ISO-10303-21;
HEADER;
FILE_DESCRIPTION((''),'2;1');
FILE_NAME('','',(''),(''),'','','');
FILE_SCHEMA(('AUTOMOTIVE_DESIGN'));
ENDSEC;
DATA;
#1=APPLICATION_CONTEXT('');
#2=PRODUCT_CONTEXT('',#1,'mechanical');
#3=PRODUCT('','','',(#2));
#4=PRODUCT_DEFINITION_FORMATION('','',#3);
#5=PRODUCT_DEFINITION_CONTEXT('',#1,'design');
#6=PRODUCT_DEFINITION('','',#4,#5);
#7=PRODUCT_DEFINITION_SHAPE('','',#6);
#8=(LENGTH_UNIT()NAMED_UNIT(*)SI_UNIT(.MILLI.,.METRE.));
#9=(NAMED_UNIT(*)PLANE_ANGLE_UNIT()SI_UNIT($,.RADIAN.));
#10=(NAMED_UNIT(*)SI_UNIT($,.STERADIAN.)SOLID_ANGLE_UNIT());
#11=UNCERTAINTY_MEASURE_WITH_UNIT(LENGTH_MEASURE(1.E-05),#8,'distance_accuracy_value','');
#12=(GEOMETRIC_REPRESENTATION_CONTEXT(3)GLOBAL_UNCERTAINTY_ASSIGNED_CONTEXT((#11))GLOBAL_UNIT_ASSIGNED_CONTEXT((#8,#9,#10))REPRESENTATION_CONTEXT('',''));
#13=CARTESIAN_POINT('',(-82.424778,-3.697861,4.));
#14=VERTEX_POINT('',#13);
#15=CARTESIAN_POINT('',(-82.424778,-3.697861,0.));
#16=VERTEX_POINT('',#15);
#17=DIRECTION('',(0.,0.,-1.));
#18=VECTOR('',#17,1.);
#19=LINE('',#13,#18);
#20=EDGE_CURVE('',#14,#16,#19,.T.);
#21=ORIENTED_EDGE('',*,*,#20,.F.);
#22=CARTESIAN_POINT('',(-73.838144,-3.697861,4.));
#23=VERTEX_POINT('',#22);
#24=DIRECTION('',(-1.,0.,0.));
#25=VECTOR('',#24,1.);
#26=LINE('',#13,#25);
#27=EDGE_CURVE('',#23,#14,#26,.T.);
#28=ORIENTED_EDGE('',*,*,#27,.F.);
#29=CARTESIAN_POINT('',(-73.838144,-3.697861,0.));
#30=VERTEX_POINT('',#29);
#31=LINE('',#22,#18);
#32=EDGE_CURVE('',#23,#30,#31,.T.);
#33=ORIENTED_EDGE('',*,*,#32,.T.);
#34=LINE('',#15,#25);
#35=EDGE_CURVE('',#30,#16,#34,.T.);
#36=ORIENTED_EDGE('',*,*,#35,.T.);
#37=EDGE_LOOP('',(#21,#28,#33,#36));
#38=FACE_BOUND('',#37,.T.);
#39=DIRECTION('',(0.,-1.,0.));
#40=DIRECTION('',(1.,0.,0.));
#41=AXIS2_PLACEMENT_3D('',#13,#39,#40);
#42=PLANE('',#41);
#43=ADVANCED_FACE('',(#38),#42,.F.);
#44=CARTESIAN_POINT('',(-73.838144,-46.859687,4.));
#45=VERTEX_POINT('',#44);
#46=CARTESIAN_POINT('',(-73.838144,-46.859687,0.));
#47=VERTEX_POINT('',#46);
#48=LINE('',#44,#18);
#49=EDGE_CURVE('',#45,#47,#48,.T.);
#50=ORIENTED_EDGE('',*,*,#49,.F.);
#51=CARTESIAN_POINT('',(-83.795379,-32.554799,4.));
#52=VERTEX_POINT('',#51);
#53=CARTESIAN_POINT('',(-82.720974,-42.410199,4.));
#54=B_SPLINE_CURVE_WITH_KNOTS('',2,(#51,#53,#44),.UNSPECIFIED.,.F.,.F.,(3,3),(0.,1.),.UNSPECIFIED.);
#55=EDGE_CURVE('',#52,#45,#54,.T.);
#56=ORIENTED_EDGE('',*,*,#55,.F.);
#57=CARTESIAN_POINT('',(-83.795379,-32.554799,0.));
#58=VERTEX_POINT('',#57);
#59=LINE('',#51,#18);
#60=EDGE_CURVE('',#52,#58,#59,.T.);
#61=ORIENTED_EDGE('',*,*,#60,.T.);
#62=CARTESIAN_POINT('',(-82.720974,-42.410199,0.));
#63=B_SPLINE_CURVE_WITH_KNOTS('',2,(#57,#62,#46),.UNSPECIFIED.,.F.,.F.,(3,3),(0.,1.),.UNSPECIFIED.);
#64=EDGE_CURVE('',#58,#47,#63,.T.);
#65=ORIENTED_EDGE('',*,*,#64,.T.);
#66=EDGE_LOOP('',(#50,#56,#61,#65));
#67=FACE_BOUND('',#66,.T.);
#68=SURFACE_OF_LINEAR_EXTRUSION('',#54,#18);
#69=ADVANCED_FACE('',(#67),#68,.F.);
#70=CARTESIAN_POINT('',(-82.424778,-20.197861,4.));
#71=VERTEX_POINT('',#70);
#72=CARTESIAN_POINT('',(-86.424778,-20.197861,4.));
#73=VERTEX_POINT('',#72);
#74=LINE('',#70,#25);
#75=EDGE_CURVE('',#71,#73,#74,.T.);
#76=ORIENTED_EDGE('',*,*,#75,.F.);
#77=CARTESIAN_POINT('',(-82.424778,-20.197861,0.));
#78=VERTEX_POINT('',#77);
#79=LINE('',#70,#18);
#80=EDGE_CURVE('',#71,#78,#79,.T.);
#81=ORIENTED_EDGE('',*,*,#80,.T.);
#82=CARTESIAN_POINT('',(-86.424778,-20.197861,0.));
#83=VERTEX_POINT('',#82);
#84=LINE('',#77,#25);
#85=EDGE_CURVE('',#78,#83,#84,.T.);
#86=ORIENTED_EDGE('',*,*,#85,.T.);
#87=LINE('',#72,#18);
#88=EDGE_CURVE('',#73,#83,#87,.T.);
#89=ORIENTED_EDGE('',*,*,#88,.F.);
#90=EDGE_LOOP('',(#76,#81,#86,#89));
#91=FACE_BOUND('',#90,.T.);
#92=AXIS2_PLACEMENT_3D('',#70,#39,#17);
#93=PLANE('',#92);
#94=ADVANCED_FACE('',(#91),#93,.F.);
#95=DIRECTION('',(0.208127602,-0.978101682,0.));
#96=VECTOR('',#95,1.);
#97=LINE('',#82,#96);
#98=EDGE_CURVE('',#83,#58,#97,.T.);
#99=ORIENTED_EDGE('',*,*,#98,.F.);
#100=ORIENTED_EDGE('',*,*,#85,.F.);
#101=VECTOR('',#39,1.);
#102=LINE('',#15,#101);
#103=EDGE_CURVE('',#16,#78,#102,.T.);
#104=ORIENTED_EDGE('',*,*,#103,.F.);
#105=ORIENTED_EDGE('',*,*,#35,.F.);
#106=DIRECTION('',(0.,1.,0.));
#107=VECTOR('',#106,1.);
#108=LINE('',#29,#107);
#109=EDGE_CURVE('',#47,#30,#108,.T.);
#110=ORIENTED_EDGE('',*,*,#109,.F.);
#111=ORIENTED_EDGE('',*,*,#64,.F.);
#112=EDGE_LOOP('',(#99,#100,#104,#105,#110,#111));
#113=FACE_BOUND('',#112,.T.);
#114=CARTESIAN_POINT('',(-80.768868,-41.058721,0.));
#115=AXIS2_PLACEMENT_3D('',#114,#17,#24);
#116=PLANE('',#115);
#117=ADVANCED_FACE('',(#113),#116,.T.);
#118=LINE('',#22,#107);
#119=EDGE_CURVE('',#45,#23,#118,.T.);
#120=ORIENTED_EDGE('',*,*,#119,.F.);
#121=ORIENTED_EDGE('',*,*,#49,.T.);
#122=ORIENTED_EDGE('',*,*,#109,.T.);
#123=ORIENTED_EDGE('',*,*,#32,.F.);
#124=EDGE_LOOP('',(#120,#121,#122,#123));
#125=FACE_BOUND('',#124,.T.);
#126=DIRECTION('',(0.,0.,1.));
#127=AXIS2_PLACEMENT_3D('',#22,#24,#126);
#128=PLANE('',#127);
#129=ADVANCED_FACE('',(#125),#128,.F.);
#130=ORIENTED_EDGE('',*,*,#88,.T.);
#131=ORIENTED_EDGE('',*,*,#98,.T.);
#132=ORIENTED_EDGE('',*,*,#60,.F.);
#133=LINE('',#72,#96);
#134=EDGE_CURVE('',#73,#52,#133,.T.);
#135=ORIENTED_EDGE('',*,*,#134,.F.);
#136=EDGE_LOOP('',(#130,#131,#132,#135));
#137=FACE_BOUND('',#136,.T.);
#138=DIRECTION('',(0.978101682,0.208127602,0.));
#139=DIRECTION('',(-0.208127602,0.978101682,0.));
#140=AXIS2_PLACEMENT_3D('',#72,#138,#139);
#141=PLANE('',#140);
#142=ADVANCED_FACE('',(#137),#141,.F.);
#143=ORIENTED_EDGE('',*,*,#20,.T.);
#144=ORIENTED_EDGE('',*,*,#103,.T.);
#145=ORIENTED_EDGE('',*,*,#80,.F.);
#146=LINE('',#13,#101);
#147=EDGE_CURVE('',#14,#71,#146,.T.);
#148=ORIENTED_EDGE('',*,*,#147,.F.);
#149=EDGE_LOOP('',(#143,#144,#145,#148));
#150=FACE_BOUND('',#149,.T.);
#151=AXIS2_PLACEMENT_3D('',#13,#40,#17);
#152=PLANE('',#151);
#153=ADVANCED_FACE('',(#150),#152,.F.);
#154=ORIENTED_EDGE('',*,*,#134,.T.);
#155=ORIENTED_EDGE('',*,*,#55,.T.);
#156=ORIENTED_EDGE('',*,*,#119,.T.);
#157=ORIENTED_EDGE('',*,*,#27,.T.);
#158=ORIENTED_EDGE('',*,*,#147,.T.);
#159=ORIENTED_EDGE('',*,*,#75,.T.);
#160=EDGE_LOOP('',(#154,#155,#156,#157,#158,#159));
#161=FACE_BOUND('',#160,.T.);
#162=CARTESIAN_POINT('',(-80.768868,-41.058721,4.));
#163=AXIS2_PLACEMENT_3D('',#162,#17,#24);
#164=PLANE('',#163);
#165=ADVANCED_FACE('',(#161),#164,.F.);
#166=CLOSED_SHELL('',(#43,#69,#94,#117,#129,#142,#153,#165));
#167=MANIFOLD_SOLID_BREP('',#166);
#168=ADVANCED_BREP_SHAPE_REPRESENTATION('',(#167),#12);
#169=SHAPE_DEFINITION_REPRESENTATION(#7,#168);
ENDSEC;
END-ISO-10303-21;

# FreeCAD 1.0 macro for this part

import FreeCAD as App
import Part
import Sketcher
Q = App.Units.Quantity

doc = App.newDocument("Part")
body = doc.addObject("PartDesign::Body", "Body")

# Sketch on XY plane
sketch1 = body.newObject("Sketcher::SketchObject", "Sketch")
sketch1.AttachmentSupport = (doc.getObject("XY_Plane"), [""])
sketch1.MapMode = "FlatFace"
sketch1.addGeometry([
    Part.LineSegment(App.Vector(-73.838144, -3.697861, 0), App.Vector(-82.424778, -3.697861, 0)),  # 0
    Part.LineSegment(App.Vector(-82.424778, -3.697861, 0), App.Vector(-82.424778, -20.197861, 0)),  # 1
    Part.LineSegment(App.Vector(-82.424778, -20.197861, 0), App.Vector(-86.424778, -20.197861, 0)),  # 2
    Part.LineSegment(App.Vector(-86.424778, -20.197861, 0), App.Vector(-83.795379, -32.554799, 0)),  # 3
    Part.BSplineCurve([App.Vector(-83.795379, -32.554799, 0), App.Vector(-82.720974, -42.410199, 0), App.Vector(-73.838144, -46.859687, 0)], [3, 3], [0, 1], False, 2, [1, 1, 1], False),  # 4
    Part.LineSegment(App.Vector(-73.838144, -46.859687, 0), App.Vector(-73.838144, -3.697861, 0)),  # 5
], False)
sketch1.addConstraint([
    Sketcher.Constraint("Block", 4),
    Sketcher.Constraint("Coincident", 0, 2, 1, 1),
    Sketcher.Constraint("Coincident", 1, 2, 2, 1),
    Sketcher.Constraint("Coincident", 2, 2, 3, 1),
    Sketcher.Constraint("Coincident", 3, 2, 4, 1),
    Sketcher.Constraint("Coincident", 4, 2, 5, 1),
    Sketcher.Constraint("Coincident", 5, 2, 0, 1),
    Sketcher.Constraint("Horizontal", 0),
    Sketcher.Constraint("Vertical", 1),
    Sketcher.Constraint("Horizontal", 2),
    Sketcher.Constraint("Vertical", 5),
    Sketcher.Constraint("DistanceX", 2, 2, 2, 1, Q("4 mm")),
    Sketcher.Constraint("DistanceY", 1, 2, 1, 1, Q("16.5 mm")),
    Sketcher.Constraint("DistanceX", 3, 2, 1, 2, Q("1.370601 mm")),
    Sketcher.Constraint("DistanceY", 5, 1, 5, 2, Q("43.161826 mm")),
])
pad1 = body.newObject("PartDesign::Pad", "Pad")
pad1.Profile = sketch1
pad1.Length = 4

doc.recompute()
